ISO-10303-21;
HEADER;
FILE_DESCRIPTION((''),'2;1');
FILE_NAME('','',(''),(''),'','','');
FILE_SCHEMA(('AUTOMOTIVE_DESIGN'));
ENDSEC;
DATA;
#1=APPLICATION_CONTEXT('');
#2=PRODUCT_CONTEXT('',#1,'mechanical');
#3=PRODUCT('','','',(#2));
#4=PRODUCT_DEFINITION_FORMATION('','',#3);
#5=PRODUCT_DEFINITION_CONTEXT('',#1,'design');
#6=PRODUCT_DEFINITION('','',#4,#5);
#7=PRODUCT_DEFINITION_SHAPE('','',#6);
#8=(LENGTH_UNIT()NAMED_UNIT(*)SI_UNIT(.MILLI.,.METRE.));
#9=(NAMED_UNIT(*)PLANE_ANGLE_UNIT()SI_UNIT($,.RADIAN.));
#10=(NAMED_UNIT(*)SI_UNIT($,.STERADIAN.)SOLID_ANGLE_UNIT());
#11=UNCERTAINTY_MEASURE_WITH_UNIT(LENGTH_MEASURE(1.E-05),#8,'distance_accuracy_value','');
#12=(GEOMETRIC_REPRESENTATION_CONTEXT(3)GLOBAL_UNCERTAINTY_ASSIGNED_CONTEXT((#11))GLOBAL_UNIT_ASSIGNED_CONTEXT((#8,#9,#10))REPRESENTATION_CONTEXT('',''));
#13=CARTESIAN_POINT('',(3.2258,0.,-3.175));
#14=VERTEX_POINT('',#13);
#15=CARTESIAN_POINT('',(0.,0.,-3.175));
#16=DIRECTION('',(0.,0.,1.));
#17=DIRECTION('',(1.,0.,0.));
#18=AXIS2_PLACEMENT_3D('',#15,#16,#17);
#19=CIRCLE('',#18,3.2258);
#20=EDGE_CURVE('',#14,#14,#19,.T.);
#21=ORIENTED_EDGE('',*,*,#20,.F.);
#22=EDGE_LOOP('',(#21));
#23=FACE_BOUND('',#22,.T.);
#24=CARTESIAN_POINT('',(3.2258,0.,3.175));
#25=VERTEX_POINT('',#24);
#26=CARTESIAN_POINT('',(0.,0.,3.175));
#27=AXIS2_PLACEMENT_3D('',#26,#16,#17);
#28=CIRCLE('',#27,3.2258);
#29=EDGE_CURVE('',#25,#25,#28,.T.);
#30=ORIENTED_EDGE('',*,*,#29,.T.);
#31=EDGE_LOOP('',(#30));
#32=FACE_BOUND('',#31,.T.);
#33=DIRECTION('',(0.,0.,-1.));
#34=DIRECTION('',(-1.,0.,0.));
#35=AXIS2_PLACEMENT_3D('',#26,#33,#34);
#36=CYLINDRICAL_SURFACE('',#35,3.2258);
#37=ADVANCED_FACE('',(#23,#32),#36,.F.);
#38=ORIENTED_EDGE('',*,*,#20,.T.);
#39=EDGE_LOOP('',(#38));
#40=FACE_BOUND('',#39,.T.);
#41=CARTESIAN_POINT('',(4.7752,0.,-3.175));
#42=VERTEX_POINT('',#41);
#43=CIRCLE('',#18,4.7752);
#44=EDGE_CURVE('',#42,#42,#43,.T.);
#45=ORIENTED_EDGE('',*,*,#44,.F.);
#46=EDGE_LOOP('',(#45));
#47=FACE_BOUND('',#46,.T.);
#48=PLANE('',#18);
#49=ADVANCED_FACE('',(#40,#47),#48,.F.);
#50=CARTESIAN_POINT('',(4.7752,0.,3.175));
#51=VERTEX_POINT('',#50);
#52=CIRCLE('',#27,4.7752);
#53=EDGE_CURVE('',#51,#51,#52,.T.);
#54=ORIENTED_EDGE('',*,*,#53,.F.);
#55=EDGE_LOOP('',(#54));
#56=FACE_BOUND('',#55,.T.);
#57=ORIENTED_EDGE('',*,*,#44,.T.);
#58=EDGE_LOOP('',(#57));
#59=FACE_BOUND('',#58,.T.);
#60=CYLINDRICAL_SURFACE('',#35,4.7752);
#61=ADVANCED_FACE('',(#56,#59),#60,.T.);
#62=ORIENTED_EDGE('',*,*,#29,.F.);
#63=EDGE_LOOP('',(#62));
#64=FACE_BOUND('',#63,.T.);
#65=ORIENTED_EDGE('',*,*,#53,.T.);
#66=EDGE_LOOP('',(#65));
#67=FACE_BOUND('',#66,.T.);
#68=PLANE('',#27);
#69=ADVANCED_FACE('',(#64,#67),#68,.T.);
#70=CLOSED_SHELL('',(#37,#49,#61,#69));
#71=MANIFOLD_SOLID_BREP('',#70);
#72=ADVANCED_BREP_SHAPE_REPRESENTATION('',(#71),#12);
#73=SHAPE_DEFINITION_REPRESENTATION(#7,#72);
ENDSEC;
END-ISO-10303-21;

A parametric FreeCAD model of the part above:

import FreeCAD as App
import Part
import Sketcher
Q = App.Units.Quantity

doc = App.newDocument("Part")
body = doc.addObject("PartDesign::Body", "Body")

# Sketch on XY plane
sketch1 = body.newObject("Sketcher::SketchObject", "Sketch")
sketch1.AttachmentSupport = (doc.getObject("XY_Plane"), [""])
sketch1.MapMode = "FlatFace"
sketch1.addGeometry([
    Part.Circle(App.Vector(0, 0, 0), App.Vector(0, 0, 1), 4.7752),
    Part.Circle(App.Vector(0, 0, 0), App.Vector(0, 0, 1), 3.2258),
], False)
sketch1.addConstraint([
    Sketcher.Constraint("Coincident", 0, 3, -1, 1),
    Sketcher.Constraint("Coincident", 1, 3, -1, 1),
    Sketcher.Constraint("Diameter", 0, Q("0.376 in")),
    Sketcher.Constraint("Diameter", 1, Q("0.254 in")),
])
pad1 = body.newObject("PartDesign::Pad", "Pad")
pad1.Profile = sketch1
pad1.Length = Q("0.25 in")
pad1.Midplane = True

doc.recompute()
